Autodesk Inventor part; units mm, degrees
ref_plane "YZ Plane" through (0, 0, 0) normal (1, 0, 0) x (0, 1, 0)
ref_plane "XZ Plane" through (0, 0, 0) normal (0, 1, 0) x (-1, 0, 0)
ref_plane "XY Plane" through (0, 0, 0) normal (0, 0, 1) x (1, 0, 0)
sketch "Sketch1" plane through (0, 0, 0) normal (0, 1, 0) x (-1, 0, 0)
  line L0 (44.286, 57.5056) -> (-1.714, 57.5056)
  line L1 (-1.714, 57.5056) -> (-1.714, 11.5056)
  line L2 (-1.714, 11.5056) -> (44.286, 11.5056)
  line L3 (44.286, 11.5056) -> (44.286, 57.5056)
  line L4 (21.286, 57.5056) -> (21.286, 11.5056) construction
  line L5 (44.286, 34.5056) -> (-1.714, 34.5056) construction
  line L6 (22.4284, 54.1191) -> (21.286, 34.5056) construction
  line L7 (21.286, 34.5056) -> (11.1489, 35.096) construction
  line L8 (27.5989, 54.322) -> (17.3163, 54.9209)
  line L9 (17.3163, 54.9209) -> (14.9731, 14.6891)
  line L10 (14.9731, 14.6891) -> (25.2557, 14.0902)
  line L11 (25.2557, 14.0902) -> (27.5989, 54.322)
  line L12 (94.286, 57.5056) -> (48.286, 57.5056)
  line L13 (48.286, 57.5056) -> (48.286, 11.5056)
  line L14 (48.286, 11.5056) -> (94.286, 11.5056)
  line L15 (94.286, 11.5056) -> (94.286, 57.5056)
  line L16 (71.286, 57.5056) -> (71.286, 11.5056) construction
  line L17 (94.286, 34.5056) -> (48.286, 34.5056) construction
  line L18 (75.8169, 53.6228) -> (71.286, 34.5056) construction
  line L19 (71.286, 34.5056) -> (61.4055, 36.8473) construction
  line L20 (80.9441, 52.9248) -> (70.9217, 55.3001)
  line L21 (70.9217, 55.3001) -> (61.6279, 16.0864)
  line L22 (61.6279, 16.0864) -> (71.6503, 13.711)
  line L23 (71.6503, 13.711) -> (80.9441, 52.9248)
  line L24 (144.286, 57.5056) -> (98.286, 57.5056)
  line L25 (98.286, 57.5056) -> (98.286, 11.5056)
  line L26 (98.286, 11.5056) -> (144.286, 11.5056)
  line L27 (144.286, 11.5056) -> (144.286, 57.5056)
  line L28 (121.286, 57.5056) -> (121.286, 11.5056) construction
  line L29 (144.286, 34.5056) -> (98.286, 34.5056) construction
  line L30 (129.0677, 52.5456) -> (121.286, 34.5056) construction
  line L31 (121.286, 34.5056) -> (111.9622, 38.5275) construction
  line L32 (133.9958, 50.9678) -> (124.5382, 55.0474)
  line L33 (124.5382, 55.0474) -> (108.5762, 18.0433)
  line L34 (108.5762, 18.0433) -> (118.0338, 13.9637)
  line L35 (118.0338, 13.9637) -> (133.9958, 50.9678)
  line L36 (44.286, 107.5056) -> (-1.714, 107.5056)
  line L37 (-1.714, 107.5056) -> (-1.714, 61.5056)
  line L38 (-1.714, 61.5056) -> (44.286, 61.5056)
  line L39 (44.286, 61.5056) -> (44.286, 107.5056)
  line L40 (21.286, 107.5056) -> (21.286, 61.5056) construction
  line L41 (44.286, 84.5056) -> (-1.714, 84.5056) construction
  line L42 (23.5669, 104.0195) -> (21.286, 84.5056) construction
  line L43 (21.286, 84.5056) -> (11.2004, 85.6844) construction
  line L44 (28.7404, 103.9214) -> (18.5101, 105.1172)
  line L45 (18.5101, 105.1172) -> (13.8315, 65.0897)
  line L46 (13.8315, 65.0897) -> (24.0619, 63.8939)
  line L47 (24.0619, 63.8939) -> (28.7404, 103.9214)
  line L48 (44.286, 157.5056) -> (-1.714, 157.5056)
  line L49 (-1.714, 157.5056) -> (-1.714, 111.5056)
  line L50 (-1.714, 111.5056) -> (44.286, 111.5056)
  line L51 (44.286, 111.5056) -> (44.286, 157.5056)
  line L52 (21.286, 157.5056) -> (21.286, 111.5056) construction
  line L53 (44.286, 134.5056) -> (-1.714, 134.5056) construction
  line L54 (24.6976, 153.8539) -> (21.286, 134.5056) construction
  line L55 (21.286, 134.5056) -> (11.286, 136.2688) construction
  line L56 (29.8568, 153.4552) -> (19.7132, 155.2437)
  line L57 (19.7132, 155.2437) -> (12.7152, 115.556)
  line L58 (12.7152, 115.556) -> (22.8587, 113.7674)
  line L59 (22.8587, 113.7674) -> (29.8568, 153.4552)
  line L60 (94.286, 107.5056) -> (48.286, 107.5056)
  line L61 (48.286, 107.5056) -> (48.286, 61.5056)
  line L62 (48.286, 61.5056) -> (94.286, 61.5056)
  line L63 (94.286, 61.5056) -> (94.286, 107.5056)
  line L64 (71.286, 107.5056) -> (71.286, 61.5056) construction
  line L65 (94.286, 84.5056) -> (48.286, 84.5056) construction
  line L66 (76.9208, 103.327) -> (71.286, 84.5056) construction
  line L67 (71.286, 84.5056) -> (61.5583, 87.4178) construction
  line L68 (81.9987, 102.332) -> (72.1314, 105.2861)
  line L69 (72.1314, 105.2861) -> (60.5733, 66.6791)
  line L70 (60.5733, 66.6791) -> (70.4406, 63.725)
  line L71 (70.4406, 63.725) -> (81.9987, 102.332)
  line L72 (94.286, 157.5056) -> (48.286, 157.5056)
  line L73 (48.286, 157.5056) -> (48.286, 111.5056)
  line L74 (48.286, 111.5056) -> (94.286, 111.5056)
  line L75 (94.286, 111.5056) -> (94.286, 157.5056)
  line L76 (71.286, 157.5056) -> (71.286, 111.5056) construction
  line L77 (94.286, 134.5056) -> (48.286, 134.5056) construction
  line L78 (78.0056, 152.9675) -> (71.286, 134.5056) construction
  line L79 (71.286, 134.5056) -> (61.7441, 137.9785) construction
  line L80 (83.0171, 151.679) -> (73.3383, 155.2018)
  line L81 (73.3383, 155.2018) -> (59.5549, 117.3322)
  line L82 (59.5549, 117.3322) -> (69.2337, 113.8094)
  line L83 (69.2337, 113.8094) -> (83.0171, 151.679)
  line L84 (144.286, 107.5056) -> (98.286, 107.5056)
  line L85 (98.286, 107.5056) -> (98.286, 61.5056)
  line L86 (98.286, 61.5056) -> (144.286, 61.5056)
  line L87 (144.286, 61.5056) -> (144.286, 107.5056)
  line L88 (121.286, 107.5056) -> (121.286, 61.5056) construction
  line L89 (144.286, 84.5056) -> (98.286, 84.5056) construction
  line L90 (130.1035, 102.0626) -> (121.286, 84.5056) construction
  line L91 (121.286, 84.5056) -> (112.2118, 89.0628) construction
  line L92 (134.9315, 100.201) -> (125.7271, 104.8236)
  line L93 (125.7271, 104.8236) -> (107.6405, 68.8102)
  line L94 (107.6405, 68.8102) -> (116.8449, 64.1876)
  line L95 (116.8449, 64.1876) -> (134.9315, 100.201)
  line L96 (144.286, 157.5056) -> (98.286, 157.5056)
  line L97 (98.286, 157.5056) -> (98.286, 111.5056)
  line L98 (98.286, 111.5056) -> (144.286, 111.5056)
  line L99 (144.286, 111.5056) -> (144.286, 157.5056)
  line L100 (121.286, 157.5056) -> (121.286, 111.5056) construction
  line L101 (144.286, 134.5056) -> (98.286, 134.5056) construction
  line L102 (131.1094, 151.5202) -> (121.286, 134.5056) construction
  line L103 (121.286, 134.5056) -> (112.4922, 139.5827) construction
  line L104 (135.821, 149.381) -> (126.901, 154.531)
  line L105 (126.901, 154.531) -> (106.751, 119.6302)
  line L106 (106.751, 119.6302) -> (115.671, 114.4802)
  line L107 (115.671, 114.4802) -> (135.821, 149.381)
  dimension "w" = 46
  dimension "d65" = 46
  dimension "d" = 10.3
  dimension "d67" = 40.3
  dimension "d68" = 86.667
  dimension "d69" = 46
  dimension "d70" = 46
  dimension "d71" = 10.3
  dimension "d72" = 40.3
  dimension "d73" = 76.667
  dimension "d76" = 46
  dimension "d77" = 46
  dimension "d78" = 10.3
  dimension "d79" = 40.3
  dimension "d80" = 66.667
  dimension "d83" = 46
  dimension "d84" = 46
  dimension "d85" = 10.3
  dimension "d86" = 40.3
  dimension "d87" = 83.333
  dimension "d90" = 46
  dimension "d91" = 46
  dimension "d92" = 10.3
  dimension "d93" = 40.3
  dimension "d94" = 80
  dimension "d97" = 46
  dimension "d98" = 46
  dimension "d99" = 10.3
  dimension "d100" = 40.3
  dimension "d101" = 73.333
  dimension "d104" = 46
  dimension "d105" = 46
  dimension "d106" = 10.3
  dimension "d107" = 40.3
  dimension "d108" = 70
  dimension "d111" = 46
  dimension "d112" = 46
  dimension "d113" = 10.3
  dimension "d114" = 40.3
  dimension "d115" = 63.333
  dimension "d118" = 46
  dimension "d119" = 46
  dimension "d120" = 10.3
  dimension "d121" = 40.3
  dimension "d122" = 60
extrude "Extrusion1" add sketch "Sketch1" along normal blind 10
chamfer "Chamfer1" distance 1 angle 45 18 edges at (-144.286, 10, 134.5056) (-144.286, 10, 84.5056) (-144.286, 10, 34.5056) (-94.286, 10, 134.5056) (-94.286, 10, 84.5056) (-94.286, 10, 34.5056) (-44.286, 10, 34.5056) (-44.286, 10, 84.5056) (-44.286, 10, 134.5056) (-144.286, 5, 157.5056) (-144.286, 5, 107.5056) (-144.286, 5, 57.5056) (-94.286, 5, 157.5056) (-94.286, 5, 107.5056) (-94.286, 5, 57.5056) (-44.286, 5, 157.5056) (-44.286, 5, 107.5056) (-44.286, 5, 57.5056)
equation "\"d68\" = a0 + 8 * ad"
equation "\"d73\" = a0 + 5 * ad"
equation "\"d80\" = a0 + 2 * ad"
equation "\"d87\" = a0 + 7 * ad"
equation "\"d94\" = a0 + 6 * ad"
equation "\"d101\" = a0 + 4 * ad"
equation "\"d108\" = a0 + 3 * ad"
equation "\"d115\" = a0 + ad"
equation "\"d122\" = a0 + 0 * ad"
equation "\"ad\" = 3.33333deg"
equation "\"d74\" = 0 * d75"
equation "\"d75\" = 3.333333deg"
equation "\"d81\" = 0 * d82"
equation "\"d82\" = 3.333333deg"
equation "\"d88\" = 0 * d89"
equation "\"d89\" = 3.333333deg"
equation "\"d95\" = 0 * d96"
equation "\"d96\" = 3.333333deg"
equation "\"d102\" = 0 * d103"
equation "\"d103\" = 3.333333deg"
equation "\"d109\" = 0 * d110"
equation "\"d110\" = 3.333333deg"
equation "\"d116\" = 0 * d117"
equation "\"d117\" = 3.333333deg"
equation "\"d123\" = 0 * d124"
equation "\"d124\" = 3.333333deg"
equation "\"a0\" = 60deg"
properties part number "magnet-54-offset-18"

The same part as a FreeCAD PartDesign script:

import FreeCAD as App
import Part
import Sketcher
Q = App.Units.Quantity


def edges_at(feature, points):
    """Names of the edges that pass closest to the given points."""
    edges = feature.Shape.Edges
    near = lambda p: min(range(len(edges)), key=lambda i: edges[i].distToShape(Part.Vertex(*p))[0])
    return sorted({f"Edge{near(p) + 1}" for p in points})


def add_polygon(sketch, points):
    """Adds a closed chain of lines whose ends are joined by coincident constraints."""
    first, n = sketch.GeometryCount, len(points)
    for a, b in zip(points, points[1:] + points[:1]):
        sketch.addGeometry(Part.LineSegment(App.Vector(*a, 0), App.Vector(*b, 0)), False)
    for i in range(n):
        sketch.addConstraint(Sketcher.Constraint("Coincident", first + i, 2, first + (i + 1) % n, 1))

doc = App.newDocument("Part")
params = doc.addObject("Spreadsheet::Sheet", "Params")
for row, (alias, value) in enumerate([
    ("sketch1_width", "46 mm"),
    ("sketch1_width2", "46 mm"),
    ("sketch1_width3", "46 mm"),
    ("sketch1_width4", "46 mm"),
    ("sketch1_width5", "46 mm"),
    ("pad1_length", "10 mm"),
    ("chamfer_size", "1 mm"),
], start=1):
    params.set(f"A{row}", alias)
    params.set(f"B{row}", "=" + value)
    params.setAlias(f"B{row}", alias)

body = doc.addObject("PartDesign::Body", "Body")
body.AllowCompound = True

# Sketch on XZ plane
sketch1 = body.newObject("Sketcher::SketchObject", "Sketch")
sketch1.AttachmentSupport = (doc.getObject("XZ_Plane"), [""])
sketch1.MapMode = "FlatFace"
add_polygon(sketch1, [(-44.286, 11.5056), (-44.286, 57.5056), (1.714, 57.5056), (1.714, 11.5056)])  # lines 0-3
add_polygon(sketch1, [(-17.3163, 54.9209), (-27.5989, 54.322), (-25.2557, 14.0902), (-14.9731, 14.6891)])  # lines 4-7
add_polygon(sketch1, [(-94.286, 11.5056), (-94.286, 57.5056), (-48.286, 57.5056), (-48.286, 11.5056)])  # lines 8-11
add_polygon(sketch1, [(-70.9217, 55.3001), (-80.9441, 52.9248), (-71.6503, 13.711), (-61.6279, 16.0864)])  # lines 12-15
add_polygon(sketch1, [(-144.286, 11.5056), (-144.286, 57.5056), (-98.286, 57.5056), (-98.286, 11.5056)])  # lines 16-19
add_polygon(sketch1, [(-124.5382, 55.0474), (-133.9958, 50.9678), (-118.0338, 13.9637), (-108.5762, 18.0433)])  # lines 20-23
add_polygon(sketch1, [(-44.286, 61.5056), (-44.286, 107.5056), (1.714, 107.5056), (1.714, 61.5056)])  # lines 24-27
add_polygon(sketch1, [(-18.5101, 105.1172), (-28.7404, 103.9214), (-24.0619, 63.8939), (-13.8315, 65.0897)])  # lines 28-31
add_polygon(sketch1, [(-44.286, 111.5056), (-44.286, 157.5056), (1.714, 157.5056), (1.714, 111.5056)])  # lines 32-35
add_polygon(sketch1, [(-19.7132, 155.2437), (-29.8568, 153.4552), (-22.8587, 113.7674), (-12.7152, 115.556)])  # lines 36-39
add_polygon(sketch1, [(-94.286, 61.5056), (-94.286, 107.5056), (-48.286, 107.5056), (-48.286, 61.5056)])  # lines 40-43
add_polygon(sketch1, [(-72.1314, 105.2861), (-81.9987, 102.332), (-70.4406, 63.725), (-60.5733, 66.6791)])  # lines 44-47
add_polygon(sketch1, [(-94.286, 111.5056), (-94.286, 157.5056), (-48.286, 157.5056), (-48.286, 111.5056)])  # lines 48-51
add_polygon(sketch1, [(-73.3383, 155.2018), (-83.0171, 151.679), (-69.2337, 113.8094), (-59.5549, 117.3322)])  # lines 52-55
add_polygon(sketch1, [(-144.286, 61.5056), (-144.286, 107.5056), (-98.286, 107.5056), (-98.286, 61.5056)])  # lines 56-59
add_polygon(sketch1, [(-125.7271, 104.8236), (-134.9315, 100.201), (-116.8449, 64.1876), (-107.6405, 68.8102)])  # lines 60-63
add_polygon(sketch1, [(-144.286, 111.5056), (-144.286, 157.5056), (-98.286, 157.5056), (-98.286, 111.5056)])  # lines 64-67
add_polygon(sketch1, [(-126.901, 154.531), (-135.821, 149.381), (-115.671, 114.4802), (-106.751, 119.6302)])  # lines 68-71
sketch1.addConstraint([
    Sketcher.Constraint("Vertical", 0),
    Sketcher.Constraint("Horizontal", 1),
    Sketcher.Constraint("Vertical", 2),
    Sketcher.Constraint("Horizontal", 3),
    Sketcher.Constraint("Vertical", 8),
    Sketcher.Constraint("Horizontal", 9),
    Sketcher.Constraint("Vertical", 10),
    Sketcher.Constraint("Horizontal", 11),
    Sketcher.Constraint("Vertical", 16),
    Sketcher.Constraint("Horizontal", 17),
    Sketcher.Constraint("Vertical", 18),
    Sketcher.Constraint("Horizontal", 19),
    Sketcher.Constraint("Vertical", 24),
    Sketcher.Constraint("Horizontal", 25),
    Sketcher.Constraint("Vertical", 26),
    Sketcher.Constraint("Horizontal", 27),
    Sketcher.Constraint("Vertical", 32),
    Sketcher.Constraint("Horizontal", 33),
    Sketcher.Constraint("Vertical", 34),
    Sketcher.Constraint("Horizontal", 35),
    Sketcher.Constraint("Vertical", 40),
    Sketcher.Constraint("Horizontal", 41),
    Sketcher.Constraint("Vertical", 42),
    Sketcher.Constraint("Horizontal", 43),
    Sketcher.Constraint("Vertical", 48),
    Sketcher.Constraint("Horizontal", 49),
    Sketcher.Constraint("Vertical", 50),
    Sketcher.Constraint("Horizontal", 51),
    Sketcher.Constraint("Vertical", 56),
    Sketcher.Constraint("Horizontal", 57),
    Sketcher.Constraint("Vertical", 58),
    Sketcher.Constraint("Horizontal", 59),
    Sketcher.Constraint("Vertical", 64),
    Sketcher.Constraint("Horizontal", 65),
    Sketcher.Constraint("Vertical", 66),
    Sketcher.Constraint("Horizontal", 67),
    Sketcher.Constraint("DistanceX", 1, 1, 1, 2, Q("46 mm")),
    Sketcher.Constraint("DistanceX", 9, 1, 9, 2, Q("46 mm")),
    Sketcher.Constraint("DistanceX", 17, 1, 17, 2, Q("46 mm")),
    Sketcher.Constraint("DistanceX", 25, 1, 25, 2, Q("46 mm")),
    Sketcher.Constraint("DistanceX", 33, 1, 33, 2, Q("46 mm")),
    Sketcher.Constraint("DistanceX", 41, 1, 41, 2, Q("46 mm")),
    Sketcher.Constraint("DistanceX", 49, 1, 49, 2, Q("46 mm")),
    Sketcher.Constraint("DistanceX", 57, 1, 57, 2, Q("46 mm")),
    Sketcher.Constraint("DistanceX", 65, 1, 65, 2, Q("46 mm")),
    Sketcher.Constraint("DistanceY", 0, 1, 0, 2, Q("46 mm")),
    Sketcher.Constraint("DistanceY", 8, 1, 8, 2, Q("46 mm")),
    Sketcher.Constraint("DistanceY", 16, 1, 16, 2, Q("46 mm")),
    Sketcher.Constraint("DistanceY", 24, 1, 24, 2, Q("46 mm")),
    Sketcher.Constraint("DistanceY", 32, 1, 32, 2, Q("46 mm")),
    Sketcher.Constraint("DistanceY", 40, 1, 40, 2, Q("46 mm")),
    Sketcher.Constraint("DistanceY", 48, 1, 48, 2, Q("46 mm")),
    Sketcher.Constraint("DistanceY", 56, 1, 56, 2, Q("46 mm")),
    Sketcher.Constraint("DistanceY", 64, 1, 64, 2, Q("46 mm")),
    Sketcher.Constraint("Distance", 4, Q("10.3 mm")),
    Sketcher.Constraint("Distance", 5, Q("40.3 mm")),
    Sketcher.Constraint("Distance", 6, Q("10.3 mm")),
    Sketcher.Constraint("Distance", 7, Q("40.3 mm")),
    Sketcher.Constraint("Distance", 12, Q("10.3 mm")),
    Sketcher.Constraint("Distance", 13, Q("40.3 mm")),
    Sketcher.Constraint("Distance", 14, Q("10.3 mm")),
    Sketcher.Constraint("Distance", 15, Q("40.3 mm")),
    Sketcher.Constraint("Distance", 20, Q("10.3 mm")),
    Sketcher.Constraint("Distance", 21, Q("40.3 mm")),
    Sketcher.Constraint("Distance", 22, Q("10.3 mm")),
    Sketcher.Constraint("Distance", 23, Q("40.3 mm")),
    Sketcher.Constraint("Distance", 28, Q("10.3 mm")),
    Sketcher.Constraint("Distance", 29, Q("40.3 mm")),
    Sketcher.Constraint("Distance", 30, Q("10.3 mm")),
    Sketcher.Constraint("Distance", 31, Q("40.3 mm")),
    Sketcher.Constraint("Distance", 36, Q("10.3 mm")),
    Sketcher.Constraint("Distance", 37, Q("40.3 mm")),
    Sketcher.Constraint("Distance", 38, Q("10.3 mm")),
    Sketcher.Constraint("Distance", 39, Q("40.3 mm")),
    Sketcher.Constraint("Distance", 44, Q("10.3 mm")),
    Sketcher.Constraint("Distance", 45, Q("40.3 mm")),
    Sketcher.Constraint("Distance", 46, Q("10.3 mm")),
    Sketcher.Constraint("Distance", 47, Q("40.3 mm")),
    Sketcher.Constraint("Distance", 52, Q("10.3 mm")),
    Sketcher.Constraint("Distance", 53, Q("40.3 mm")),
    Sketcher.Constraint("Distance", 54, Q("10.3 mm")),
    Sketcher.Constraint("Distance", 55, Q("40.3 mm")),
    Sketcher.Constraint("Distance", 60, Q("10.3 mm")),
    Sketcher.Constraint("Distance", 61, Q("40.3 mm")),
    Sketcher.Constraint("Distance", 62, Q("10.3 mm")),
    Sketcher.Constraint("Distance", 63, Q("40.3 mm")),
    Sketcher.Constraint("Distance", 68, Q("10.3 mm")),
    Sketcher.Constraint("Distance", 69, Q("40.3 mm")),
    Sketcher.Constraint("Distance", 70, Q("10.3 mm")),
    Sketcher.Constraint("Distance", 71, Q("40.3 mm")),
    Sketcher.Constraint("DistanceY", -1, 1, 15, 2, Q("55.3 mm")),
    Sketcher.Constraint("DistanceX", 31, 2, -1, 1, Q("18.51 mm")),
    Sketcher.Constraint("DistanceX", 0, 2, -1, 1, Q("44.286 mm")),
    Sketcher.Constraint("DistanceX", 4, 2, -1, 1, Q("27.599 mm")),
    Sketcher.Constraint("DistanceY", -1, 1, 4, 2, Q("54.322 mm")),
    Sketcher.Constraint("DistanceX", 6, 2, -1, 1, Q("14.973 mm")),
    Sketcher.Constraint("DistanceY", -1, 1, 6, 2, Q("14.689 mm")),
    Sketcher.Constraint("DistanceX", 8, 2, -1, 1, Q("94.286 mm")),
    Sketcher.Constraint("DistanceX", 12, 2, -1, 1, Q("80.944 mm")),
    Sketcher.Constraint("DistanceY", -1, 1, 13, 2, Q("13.711 mm")),
    Sketcher.Constraint("DistanceX", 14, 2, -1, 1, Q("61.628 mm")),
    Sketcher.Constraint("DistanceX", 16, 2, -1, 1, Q("144.286 mm")),
    Sketcher.Constraint("DistanceX", 24, 2, -1, 1, Q("44.286 mm")),
    Sketcher.Constraint("DistanceX", 29, 2, -1, 1, Q("24.062 mm")),
    Sketcher.Constraint("DistanceY", -1, 1, 29, 2, Q("63.894 mm")),
    Sketcher.Constraint("DistanceX", 32, 2, -1, 1, Q("44.286 mm")),
    Sketcher.Constraint("DistanceY", -1, 1, 38, 2, Q("115.556 mm")),
    Sketcher.Constraint("DistanceX", 40, 2, -1, 1, Q("94.286 mm")),
    Sketcher.Constraint("DistanceY", -1, 1, 44, 2, Q("102.332 mm")),
    Sketcher.Constraint("DistanceY", -1, 1, 45, 2, Q("63.725 mm")),
    Sketcher.Constraint("DistanceY", -1, 1, 46, 2, Q("66.679 mm")),
    Sketcher.Constraint("DistanceX", 48, 2, -1, 1, Q("94.286 mm")),
    Sketcher.Constraint("DistanceX", 52, 2, -1, 1, Q("83.017 mm")),
    Sketcher.Constraint("DistanceY", -1, 1, 52, 2, Q("151.679 mm")),
    Sketcher.Constraint("DistanceX", 54, 2, -1, 1, Q("59.555 mm")),
    Sketcher.Constraint("DistanceX", 56, 2, -1, 1, Q("144.286 mm")),
    Sketcher.Constraint("DistanceY", -1, 1, 60, 2, Q("100.201 mm")),
    Sketcher.Constraint("DistanceX", 61, 2, -1, 1, Q("116.845 mm")),
    Sketcher.Constraint("DistanceX", 63, 2, -1, 1, Q("125.727 mm")),
    Sketcher.Constraint("DistanceX", 64, 2, -1, 1, Q("144.286 mm")),
    Sketcher.Constraint("DistanceX", 68, 2, -1, 1, Q("135.821 mm")),
    Sketcher.Constraint("DistanceY", -1, 1, 68, 2, Q("149.381 mm")),
    Sketcher.Constraint("DistanceX", 69, 2, -1, 1, Q("115.671 mm")),
    Sketcher.Constraint("DistanceX", 70, 2, -1, 1, Q("106.751 mm")),
    Sketcher.Constraint("DistanceY", -1, 1, 0, 2, Q("57.5056 mm")),
    Sketcher.Constraint("DistanceY", -1, 1, 8, 2, Q("57.5056 mm")),
    Sketcher.Constraint("DistanceY", -1, 1, 16, 2, Q("57.5056 mm")),
    Sketcher.Constraint("DistanceX", 20, 2, -1, 1, Q("133.9958 mm")),
    Sketcher.Constraint("DistanceY", -1, 1, 20, 2, Q("50.9678 mm")),
    Sketcher.Constraint("DistanceX", 21, 2, -1, 1, Q("118.0338 mm")),
    Sketcher.Constraint("DistanceX", 22, 2, -1, 1, Q("108.5762 mm")),
    Sketcher.Constraint("DistanceY", -1, 1, 24, 2, Q("107.5056 mm")),
    Sketcher.Constraint("DistanceX", 28, 2, -1, 1, Q("28.7404 mm")),
    Sketcher.Constraint("DistanceY", -1, 1, 32, 2, Q("157.5056 mm")),
    Sketcher.Constraint("DistanceX", 36, 2, -1, 1, Q("29.8568 mm")),
    Sketcher.Constraint("DistanceY", -1, 1, 36, 2, Q("153.4552 mm")),
    Sketcher.Constraint("DistanceX", 37, 2, -1, 1, Q("22.8587 mm")),
    Sketcher.Constraint("DistanceY", -1, 1, 40, 2, Q("107.5056 mm")),
    Sketcher.Constraint("DistanceX", 44, 2, -1, 1, Q("81.9987 mm")),
    Sketcher.Constraint("DistanceY", -1, 1, 48, 2, Q("157.5056 mm")),
    Sketcher.Constraint("DistanceX", 53, 2, -1, 1, Q("69.2337 mm")),
    Sketcher.Constraint("DistanceY", -1, 1, 56, 2, Q("107.5056 mm")),
    Sketcher.Constraint("DistanceX", 60, 2, -1, 1, Q("134.9315 mm")),
    Sketcher.Constraint("DistanceY", -1, 1, 64, 2, Q("157.5056 mm")),
])
sketch1.setExpression("Constraints[108]", "Params.sketch1_width")
sketch1.setExpression("Constraints[109]", "Params.sketch1_width2")
sketch1.setExpression("Constraints[110]", "Params.sketch1_width3")
sketch1.setExpression("Constraints[111]", "Params.sketch1_width4")
sketch1.setExpression("Constraints[112]", "Params.sketch1_width5")
pad1 = body.newObject("PartDesign::Pad", "Pad")
pad1.Profile = sketch1
pad1.setExpression("Length", "Params.pad1_length")
pad1.Reversed = True
doc.recompute()

chamfer = body.newObject("PartDesign::Chamfer", "Chamfer")
chamfer.Base = (pad1, edges_at(pad1, [
    (-144.286, 10, 134.506),
    (-144.286, 10, 84.506),
    (-144.286, 10, 34.506),
    (-94.286, 10, 134.506),
    (-94.286, 10, 84.506),
    (-94.286, 10, 34.506),
    (-44.286, 10, 34.506),
    (-44.286, 10, 84.506),
    (-44.286, 10, 134.506),
    (-144.286, 5, 157.506),
    (-144.286, 5, 107.506),
    (-144.286, 5, 57.506),
    (-94.286, 5, 157.506),
    (-94.286, 5, 107.506),
    (-94.286, 5, 57.506),
    (-44.286, 5, 157.506),
    (-44.286, 5, 107.506),
    (-44.286, 5, 57.506),
]))
chamfer.setExpression("Size", "Params.chamfer_size")

doc.recompute()
